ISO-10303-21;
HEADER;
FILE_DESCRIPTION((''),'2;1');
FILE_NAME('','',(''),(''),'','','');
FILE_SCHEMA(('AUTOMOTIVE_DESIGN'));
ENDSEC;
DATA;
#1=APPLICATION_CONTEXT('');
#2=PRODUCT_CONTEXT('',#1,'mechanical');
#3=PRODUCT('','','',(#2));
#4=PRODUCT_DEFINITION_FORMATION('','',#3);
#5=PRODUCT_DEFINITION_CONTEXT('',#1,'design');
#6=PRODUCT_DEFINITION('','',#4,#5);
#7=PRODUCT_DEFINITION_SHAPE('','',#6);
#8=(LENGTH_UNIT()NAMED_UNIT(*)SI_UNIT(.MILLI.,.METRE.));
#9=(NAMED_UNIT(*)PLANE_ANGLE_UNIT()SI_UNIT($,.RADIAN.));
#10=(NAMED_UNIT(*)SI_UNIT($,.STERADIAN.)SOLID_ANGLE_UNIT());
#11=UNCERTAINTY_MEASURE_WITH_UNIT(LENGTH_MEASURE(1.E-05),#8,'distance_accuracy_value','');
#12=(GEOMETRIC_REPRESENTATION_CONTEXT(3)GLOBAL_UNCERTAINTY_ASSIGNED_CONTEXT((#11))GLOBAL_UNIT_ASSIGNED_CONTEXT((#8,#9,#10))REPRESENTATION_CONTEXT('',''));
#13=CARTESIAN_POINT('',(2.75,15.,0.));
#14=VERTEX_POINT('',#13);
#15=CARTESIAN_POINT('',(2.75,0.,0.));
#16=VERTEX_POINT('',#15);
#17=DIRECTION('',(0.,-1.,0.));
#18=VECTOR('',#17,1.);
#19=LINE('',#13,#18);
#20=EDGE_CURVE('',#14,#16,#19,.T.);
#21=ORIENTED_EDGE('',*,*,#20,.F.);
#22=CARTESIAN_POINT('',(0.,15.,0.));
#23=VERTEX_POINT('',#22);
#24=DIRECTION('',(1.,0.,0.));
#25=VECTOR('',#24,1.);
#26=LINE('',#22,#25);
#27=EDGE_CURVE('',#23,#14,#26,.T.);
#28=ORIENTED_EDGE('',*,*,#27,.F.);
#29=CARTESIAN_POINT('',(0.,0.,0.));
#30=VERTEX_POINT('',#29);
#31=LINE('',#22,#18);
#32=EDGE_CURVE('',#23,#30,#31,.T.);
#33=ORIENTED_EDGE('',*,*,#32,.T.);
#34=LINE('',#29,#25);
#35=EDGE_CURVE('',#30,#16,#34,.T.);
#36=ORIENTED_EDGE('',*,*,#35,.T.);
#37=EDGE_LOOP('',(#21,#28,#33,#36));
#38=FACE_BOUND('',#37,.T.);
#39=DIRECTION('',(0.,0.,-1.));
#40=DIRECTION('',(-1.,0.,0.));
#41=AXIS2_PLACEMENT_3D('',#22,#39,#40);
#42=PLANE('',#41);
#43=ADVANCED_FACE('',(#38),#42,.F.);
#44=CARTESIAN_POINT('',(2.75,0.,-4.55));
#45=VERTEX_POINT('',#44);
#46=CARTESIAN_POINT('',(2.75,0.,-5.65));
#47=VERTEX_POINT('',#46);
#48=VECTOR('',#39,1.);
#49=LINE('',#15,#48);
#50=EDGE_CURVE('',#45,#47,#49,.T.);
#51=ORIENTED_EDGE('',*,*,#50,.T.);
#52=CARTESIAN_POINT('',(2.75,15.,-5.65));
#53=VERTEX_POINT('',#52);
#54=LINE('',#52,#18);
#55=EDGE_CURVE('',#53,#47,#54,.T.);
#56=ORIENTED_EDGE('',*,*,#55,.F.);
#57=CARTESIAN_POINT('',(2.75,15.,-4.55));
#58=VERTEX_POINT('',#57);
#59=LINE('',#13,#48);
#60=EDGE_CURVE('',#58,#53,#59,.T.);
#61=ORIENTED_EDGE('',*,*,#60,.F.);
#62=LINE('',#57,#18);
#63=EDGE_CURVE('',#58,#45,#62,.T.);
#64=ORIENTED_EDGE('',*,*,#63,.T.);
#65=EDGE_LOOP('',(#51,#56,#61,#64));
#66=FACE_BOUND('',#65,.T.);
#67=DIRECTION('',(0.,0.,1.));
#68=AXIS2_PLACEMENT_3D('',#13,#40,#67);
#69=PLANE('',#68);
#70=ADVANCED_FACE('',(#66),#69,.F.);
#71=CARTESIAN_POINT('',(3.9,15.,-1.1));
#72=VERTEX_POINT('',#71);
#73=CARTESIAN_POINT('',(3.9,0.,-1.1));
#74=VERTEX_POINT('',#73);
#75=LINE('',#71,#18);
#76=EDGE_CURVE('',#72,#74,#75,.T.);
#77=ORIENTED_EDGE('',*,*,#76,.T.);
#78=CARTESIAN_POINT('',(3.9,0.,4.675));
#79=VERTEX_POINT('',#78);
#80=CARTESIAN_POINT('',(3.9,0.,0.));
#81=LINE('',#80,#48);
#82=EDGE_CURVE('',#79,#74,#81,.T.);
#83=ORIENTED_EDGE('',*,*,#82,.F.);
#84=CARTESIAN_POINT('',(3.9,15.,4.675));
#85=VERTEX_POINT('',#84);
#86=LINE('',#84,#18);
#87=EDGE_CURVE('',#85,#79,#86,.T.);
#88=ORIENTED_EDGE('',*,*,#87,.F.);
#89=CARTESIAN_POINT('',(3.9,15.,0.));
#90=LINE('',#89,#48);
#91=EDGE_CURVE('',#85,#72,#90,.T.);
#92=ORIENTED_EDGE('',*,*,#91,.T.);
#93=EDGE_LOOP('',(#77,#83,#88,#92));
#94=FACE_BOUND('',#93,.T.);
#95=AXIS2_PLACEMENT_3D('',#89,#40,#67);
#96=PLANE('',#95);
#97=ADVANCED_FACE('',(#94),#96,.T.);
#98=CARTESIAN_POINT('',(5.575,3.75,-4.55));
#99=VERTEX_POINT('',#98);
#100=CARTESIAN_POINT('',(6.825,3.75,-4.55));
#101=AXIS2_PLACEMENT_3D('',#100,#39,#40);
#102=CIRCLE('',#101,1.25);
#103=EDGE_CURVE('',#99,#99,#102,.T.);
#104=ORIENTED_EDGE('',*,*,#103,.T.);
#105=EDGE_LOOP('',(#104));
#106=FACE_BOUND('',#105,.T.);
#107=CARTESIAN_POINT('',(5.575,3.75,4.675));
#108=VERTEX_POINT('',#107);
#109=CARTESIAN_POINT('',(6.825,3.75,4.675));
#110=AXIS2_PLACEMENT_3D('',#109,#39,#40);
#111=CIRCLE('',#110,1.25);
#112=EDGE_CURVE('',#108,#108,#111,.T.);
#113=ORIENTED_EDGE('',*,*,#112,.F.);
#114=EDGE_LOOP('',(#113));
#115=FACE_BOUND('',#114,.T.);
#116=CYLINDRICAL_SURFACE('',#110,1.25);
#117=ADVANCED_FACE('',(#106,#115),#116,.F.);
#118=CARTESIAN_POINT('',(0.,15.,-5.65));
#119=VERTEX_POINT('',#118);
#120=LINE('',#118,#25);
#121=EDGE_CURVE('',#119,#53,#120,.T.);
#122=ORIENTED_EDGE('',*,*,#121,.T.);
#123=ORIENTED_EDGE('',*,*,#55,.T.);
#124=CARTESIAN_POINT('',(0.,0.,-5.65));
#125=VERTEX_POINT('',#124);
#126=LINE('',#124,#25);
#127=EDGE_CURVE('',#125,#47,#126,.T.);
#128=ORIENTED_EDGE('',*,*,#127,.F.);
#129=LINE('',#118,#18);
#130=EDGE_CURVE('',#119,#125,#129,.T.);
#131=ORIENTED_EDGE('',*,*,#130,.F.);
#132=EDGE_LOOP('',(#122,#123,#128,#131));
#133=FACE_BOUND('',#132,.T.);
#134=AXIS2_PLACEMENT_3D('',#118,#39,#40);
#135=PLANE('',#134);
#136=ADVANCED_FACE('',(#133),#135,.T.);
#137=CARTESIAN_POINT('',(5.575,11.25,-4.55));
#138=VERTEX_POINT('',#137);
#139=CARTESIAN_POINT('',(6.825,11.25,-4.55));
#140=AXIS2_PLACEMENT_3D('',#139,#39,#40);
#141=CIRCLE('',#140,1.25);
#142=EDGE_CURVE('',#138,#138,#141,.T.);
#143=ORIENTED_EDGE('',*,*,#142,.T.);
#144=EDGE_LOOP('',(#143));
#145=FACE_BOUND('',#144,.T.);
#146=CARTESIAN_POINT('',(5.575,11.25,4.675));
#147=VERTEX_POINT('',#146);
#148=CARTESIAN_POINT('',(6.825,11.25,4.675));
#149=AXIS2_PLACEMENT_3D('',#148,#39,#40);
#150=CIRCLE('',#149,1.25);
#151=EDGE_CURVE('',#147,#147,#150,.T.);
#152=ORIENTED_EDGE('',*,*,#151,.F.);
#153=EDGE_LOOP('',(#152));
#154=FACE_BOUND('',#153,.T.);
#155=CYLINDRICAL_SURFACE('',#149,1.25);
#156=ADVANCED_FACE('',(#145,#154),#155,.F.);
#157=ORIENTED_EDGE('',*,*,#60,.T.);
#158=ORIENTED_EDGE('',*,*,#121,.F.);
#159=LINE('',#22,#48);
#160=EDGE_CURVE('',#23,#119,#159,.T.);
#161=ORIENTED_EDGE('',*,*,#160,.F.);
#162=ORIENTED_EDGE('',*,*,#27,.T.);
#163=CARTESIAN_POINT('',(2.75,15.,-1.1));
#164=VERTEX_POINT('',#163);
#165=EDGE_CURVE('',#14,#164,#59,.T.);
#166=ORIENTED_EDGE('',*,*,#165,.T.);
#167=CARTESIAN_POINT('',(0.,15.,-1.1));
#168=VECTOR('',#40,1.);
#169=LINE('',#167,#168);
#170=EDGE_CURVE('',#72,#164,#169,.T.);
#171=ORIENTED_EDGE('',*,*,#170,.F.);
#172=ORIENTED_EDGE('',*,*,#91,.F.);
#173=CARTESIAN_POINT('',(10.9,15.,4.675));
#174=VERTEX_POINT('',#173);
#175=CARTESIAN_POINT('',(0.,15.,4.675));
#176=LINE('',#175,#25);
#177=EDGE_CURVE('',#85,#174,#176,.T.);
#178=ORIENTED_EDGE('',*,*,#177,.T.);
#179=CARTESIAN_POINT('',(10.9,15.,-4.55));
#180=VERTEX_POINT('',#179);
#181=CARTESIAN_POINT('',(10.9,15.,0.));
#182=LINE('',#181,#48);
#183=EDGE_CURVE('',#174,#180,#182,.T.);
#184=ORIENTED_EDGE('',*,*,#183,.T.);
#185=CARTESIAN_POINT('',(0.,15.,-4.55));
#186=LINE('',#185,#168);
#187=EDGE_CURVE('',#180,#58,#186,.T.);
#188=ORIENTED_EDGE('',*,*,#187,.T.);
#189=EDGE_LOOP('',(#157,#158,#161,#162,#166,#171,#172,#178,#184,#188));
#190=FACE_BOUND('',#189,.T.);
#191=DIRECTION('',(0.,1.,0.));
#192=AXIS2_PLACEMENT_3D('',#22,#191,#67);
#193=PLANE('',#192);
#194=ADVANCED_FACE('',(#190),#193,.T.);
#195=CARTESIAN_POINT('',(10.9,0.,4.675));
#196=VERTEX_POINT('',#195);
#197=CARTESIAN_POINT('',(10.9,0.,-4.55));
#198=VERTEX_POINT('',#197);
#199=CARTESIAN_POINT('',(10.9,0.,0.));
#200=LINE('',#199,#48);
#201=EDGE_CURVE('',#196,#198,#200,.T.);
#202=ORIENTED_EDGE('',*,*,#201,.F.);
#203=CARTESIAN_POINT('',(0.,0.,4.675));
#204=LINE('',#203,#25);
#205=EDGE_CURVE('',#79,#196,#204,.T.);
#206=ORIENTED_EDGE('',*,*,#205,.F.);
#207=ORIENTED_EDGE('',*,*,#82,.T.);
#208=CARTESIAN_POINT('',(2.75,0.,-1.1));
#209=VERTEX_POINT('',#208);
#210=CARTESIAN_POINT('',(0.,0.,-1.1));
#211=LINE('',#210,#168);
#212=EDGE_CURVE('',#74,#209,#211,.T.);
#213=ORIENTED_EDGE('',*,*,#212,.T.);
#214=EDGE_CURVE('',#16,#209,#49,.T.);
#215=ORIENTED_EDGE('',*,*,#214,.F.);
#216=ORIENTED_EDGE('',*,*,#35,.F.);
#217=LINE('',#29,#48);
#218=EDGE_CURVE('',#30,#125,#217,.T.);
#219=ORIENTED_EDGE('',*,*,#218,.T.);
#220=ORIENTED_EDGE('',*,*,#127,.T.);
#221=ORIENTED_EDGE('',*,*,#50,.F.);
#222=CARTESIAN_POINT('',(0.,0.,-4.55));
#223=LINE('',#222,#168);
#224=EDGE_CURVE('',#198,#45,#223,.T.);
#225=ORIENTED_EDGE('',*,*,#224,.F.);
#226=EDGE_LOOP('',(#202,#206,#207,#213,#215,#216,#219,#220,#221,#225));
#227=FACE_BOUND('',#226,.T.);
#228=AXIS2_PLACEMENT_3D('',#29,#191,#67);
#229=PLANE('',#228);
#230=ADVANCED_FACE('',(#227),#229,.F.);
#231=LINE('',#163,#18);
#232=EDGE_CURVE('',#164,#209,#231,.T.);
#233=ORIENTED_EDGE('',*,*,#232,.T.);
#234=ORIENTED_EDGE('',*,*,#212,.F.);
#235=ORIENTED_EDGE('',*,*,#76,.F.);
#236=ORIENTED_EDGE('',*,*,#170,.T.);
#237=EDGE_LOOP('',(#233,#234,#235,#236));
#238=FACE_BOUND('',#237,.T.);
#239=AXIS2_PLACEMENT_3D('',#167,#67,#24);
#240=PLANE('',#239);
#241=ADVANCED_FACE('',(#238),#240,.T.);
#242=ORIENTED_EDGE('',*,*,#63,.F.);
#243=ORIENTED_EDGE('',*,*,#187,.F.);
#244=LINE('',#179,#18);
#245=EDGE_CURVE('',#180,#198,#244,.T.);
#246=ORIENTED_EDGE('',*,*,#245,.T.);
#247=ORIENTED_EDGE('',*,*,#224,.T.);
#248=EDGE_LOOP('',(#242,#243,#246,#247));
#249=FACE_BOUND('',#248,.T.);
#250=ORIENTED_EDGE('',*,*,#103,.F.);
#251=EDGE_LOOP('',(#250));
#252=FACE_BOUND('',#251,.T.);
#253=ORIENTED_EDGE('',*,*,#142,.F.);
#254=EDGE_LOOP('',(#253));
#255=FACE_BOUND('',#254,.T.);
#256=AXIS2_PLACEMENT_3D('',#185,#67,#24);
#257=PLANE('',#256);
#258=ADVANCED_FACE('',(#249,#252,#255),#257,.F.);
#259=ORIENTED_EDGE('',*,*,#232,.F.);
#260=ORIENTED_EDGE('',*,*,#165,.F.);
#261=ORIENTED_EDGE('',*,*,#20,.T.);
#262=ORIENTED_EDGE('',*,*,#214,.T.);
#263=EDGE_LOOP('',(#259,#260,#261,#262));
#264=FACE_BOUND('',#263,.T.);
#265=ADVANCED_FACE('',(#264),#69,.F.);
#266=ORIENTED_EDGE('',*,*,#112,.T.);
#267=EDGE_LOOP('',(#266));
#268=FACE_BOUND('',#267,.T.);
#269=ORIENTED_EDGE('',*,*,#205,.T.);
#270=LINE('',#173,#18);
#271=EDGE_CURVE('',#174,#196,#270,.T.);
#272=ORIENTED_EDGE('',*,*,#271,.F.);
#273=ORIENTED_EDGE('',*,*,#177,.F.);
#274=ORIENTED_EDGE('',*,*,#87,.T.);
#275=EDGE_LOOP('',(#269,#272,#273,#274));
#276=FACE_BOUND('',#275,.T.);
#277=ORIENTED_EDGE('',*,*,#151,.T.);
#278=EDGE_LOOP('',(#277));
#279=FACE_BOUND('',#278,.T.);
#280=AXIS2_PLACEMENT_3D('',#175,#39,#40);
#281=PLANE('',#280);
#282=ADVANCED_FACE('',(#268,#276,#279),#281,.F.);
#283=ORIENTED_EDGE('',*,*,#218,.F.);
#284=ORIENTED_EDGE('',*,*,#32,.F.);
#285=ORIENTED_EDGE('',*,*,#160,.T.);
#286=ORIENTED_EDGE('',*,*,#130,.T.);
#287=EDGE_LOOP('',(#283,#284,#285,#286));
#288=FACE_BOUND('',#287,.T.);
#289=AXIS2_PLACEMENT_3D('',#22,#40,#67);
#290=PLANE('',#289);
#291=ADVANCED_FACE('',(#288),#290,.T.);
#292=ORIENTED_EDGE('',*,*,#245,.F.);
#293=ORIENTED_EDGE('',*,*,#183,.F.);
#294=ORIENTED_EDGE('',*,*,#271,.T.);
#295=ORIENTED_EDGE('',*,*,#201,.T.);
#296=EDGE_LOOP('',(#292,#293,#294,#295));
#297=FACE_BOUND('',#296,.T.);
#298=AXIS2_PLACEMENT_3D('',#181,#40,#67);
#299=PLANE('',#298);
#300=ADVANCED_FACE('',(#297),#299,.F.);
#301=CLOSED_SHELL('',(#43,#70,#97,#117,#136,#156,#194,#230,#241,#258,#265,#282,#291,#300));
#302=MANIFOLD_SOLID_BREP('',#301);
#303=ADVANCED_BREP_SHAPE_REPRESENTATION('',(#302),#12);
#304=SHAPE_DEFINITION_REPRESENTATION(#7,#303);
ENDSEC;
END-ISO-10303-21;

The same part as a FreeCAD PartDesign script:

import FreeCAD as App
import Part
import Sketcher
Q = App.Units.Quantity

doc = App.newDocument("Part")
body = doc.addObject("PartDesign::Body", "Body")

# Sketch on XZ plane
sketch1 = body.newObject("Sketcher::SketchObject", "Sketch")
sketch1.AttachmentSupport = (doc.getObject("XZ_Plane"), [""])
sketch1.MapMode = "FlatFace"
sketch1.addGeometry([
    Part.LineSegment(App.Vector(0, -5.7, 0), App.Vector(0, 0, 0)),  # 0
    Part.LineSegment(App.Vector(0, 0, 0), App.Vector(2.8, 0, 0)),  # 1
    Part.LineSegment(App.Vector(2.8, 0, 0), App.Vector(2.8, -1.1, 0)),  # 2
    Part.LineSegment(App.Vector(2.8, -1.1, 0), App.Vector(3.9, -1.1, 0)),  # 3
    Part.LineSegment(App.Vector(3.9, -1.1, 0), App.Vector(3.9, 4.7, 0)),  # 4
    Part.LineSegment(App.Vector(3.9, 4.7, 0), App.Vector(10.9, 4.7, 0)),  # 5
    Part.LineSegment(App.Vector(10.9, 4.7, 0), App.Vector(10.9, -4.5, 0)),  # 6
    Part.LineSegment(App.Vector(10.9, -4.5, 0), App.Vector(2.8, -4.5, 0)),  # 7
    Part.LineSegment(App.Vector(2.8, -4.5, 0), App.Vector(2.8, -5.7, 0)),  # 8
    Part.LineSegment(App.Vector(2.8, -5.7, 0), App.Vector(0, -5.7, 0)),  # 9
], False)
sketch1.addConstraint([
    Sketcher.Constraint("Coincident", 0, 2, 1, 1),
    Sketcher.Constraint("Coincident", 1, 2, 2, 1),
    Sketcher.Constraint("Coincident", 2, 2, 3, 1),
    Sketcher.Constraint("Coincident", 3, 2, 4, 1),
    Sketcher.Constraint("Coincident", 4, 2, 5, 1),
    Sketcher.Constraint("Coincident", 5, 2, 6, 1),
    Sketcher.Constraint("Coincident", 6, 2, 7, 1),
    Sketcher.Constraint("Coincident", 7, 2, 8, 1),
    Sketcher.Constraint("Coincident", 8, 2, 9, 1),
    Sketcher.Constraint("Coincident", 9, 2, 0, 1),
    Sketcher.Constraint("Vertical", 0),
    Sketcher.Constraint("Horizontal", 1),
    Sketcher.Constraint("Vertical", 2),
    Sketcher.Constraint("Horizontal", 3),
    Sketcher.Constraint("Vertical", 4),
    Sketcher.Constraint("Horizontal", 5),
    Sketcher.Constraint("Vertical", 6),
    Sketcher.Constraint("Horizontal", 7),
    Sketcher.Constraint("Vertical", 8),
    Sketcher.Constraint("Horizontal", 9),
    Sketcher.Constraint("Coincident", 0, 2, -1, 1),
    Sketcher.Constraint("Vertical", 2, 2, 7, 2),
    Sketcher.Constraint("Equal", 2, 8),
    Sketcher.Constraint("DistanceX", 5, 1, 5, 2, Q("7 mm")),
    Sketcher.Constraint("DistanceY", 2, 2, 2, 1, Q("1.1 mm")),
    Sketcher.Constraint("DistanceX", 1, 1, 1, 2, Q("2.75 mm")),
    Sketcher.Constraint("DistanceX", 3, 1, 3, 2, Q("1.15 mm")),
    Sketcher.Constraint("DistanceY", 0, 1, 0, 2, Q("5.65 mm")),
    Sketcher.Constraint("DistanceY", 4, 1, 4, 2, Q("5.775 mm")),
])
pad1 = body.newObject("PartDesign::Pad", "Pad")
pad1.Profile = sketch1
pad1.Length = 15
pad1.Reversed = True

# Sketch on XY plane
sketch2 = body.newObject("Sketcher::SketchObject", "Sketch001")
sketch2.AttachmentSupport = (doc.getObject("XY_Plane"), [""])
sketch2.MapMode = "FlatFace"
sketch2.AttachmentOffset = App.Placement(App.Vector(0, 0, -4.55), App.Rotation())
sketch2.addGeometry([
    Part.Circle(App.Vector(6.8, 11.2, 0), App.Vector(0, 0, 1), 1.2),
    Part.Circle(App.Vector(6.8, 3.8, 0), App.Vector(0, 0, 1), 1.2),
], False)
sketch2.addConstraint([
    Sketcher.Constraint("Equal", 0, 1),
    Sketcher.Constraint("Vertical", 0, 3, 1, 3),
    Sketcher.Constraint("Diameter", 0, Q("2.5 mm")),
    Sketcher.Constraint("DistanceY", 1, 3, 0, 3, Q("7.5 mm")),
    Sketcher.Constraint("DistanceY", -1, 1, 0, 3, Q("11.25 mm")),
    Sketcher.Constraint("DistanceX", -1, 1, 0, 3, Q("6.825 mm")),
])
pocket1 = body.newObject("PartDesign::Pocket", "Pocket")
pocket1.Profile = sketch2
pocket1.Type = "ThroughAll"
pocket1.Reversed = True

doc.recompute()
